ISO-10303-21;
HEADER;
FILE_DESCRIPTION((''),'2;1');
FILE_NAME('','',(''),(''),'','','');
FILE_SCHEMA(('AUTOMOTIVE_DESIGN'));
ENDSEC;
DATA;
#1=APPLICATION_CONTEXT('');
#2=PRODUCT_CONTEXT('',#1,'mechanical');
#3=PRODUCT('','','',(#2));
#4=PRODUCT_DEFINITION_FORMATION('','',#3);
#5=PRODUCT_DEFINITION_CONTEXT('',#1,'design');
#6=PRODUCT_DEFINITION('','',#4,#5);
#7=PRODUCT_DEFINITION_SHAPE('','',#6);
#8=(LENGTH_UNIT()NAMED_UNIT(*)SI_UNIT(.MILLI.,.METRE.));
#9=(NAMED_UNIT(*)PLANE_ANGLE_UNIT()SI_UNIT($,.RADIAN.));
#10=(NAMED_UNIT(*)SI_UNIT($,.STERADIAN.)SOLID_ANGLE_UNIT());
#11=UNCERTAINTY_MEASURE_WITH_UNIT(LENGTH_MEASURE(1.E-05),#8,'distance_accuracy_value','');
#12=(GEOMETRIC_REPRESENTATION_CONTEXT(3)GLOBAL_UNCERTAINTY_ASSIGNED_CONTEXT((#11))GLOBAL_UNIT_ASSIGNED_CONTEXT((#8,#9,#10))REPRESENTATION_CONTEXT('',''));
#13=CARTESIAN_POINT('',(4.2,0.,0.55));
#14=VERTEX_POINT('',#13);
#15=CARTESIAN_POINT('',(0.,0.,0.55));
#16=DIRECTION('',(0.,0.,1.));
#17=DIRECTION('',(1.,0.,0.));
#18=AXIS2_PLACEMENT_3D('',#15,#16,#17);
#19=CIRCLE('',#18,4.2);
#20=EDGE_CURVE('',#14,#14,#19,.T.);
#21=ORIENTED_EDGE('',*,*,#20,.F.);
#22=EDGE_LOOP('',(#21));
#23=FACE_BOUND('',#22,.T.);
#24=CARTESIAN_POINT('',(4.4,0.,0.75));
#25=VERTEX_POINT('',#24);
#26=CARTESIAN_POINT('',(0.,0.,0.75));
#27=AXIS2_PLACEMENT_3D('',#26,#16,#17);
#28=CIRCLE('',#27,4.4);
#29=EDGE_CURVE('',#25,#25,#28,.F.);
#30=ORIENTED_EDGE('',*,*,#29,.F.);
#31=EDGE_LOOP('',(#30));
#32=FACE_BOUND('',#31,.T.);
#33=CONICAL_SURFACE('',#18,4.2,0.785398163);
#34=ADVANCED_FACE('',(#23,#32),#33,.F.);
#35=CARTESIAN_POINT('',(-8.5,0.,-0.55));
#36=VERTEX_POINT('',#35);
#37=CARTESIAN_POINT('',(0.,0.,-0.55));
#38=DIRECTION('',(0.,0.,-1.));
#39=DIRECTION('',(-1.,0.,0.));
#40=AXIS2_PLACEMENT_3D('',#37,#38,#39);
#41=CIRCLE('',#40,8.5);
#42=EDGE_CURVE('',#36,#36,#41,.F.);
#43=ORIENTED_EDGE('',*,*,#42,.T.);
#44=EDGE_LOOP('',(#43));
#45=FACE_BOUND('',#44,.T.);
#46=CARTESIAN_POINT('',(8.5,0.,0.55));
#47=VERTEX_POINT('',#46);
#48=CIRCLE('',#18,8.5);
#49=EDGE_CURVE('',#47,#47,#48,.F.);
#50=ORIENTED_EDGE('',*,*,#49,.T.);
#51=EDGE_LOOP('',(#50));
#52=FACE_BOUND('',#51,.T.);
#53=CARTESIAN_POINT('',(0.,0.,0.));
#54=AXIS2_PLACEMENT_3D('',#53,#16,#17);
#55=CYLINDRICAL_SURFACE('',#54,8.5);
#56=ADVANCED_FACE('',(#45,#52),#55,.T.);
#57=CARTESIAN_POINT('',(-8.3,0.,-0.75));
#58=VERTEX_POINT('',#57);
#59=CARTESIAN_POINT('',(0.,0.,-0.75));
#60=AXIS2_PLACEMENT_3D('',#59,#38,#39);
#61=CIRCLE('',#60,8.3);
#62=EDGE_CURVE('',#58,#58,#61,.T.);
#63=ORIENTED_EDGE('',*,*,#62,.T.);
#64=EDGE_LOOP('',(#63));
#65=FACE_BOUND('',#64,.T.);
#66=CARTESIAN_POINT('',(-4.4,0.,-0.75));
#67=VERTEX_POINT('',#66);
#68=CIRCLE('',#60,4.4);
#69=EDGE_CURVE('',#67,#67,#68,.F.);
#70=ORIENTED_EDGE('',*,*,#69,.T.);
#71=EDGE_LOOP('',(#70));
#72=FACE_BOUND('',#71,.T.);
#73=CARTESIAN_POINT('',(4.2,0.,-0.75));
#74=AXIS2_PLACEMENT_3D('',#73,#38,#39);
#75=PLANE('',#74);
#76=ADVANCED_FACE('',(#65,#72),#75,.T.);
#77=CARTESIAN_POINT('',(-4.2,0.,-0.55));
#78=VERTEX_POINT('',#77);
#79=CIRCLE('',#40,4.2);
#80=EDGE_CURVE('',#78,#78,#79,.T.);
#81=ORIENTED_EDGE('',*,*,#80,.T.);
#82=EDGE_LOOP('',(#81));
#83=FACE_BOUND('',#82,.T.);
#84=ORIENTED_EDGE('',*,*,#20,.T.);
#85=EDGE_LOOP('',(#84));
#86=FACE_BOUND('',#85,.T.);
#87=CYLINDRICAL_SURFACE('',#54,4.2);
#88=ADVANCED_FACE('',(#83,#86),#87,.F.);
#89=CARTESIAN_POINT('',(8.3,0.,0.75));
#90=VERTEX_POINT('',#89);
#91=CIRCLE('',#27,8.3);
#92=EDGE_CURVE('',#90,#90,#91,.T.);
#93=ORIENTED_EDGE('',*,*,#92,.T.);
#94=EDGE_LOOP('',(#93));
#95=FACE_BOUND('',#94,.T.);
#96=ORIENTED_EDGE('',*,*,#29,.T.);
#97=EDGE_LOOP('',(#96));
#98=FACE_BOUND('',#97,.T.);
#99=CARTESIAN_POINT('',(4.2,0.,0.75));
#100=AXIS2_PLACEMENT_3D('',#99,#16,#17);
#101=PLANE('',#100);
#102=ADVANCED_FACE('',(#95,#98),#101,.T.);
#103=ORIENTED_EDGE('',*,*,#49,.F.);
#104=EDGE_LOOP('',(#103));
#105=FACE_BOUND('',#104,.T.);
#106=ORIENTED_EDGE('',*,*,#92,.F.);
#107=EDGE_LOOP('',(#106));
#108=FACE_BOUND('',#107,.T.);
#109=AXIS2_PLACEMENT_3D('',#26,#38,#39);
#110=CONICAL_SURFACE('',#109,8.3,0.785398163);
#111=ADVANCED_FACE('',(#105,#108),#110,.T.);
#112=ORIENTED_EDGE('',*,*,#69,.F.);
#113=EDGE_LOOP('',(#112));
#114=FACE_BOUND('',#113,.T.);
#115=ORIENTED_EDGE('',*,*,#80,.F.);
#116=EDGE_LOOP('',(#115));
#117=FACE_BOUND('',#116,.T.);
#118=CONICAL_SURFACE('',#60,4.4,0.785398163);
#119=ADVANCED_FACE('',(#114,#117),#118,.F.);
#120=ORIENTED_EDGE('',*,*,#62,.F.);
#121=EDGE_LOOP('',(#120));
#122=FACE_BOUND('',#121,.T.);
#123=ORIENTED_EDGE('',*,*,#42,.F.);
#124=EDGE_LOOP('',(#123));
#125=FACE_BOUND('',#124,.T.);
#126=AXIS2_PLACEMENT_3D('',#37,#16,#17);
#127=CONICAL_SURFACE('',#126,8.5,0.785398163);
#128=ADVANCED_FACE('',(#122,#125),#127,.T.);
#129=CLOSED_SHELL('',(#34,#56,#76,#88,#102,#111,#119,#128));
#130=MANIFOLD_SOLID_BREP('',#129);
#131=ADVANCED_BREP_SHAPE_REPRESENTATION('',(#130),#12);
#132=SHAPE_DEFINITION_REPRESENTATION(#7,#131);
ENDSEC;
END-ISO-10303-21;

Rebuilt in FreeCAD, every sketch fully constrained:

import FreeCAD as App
import Part
import Sketcher

V = App.Vector


def edges_at(feature, points):
    """Names of the edges that pass closest to the given points."""
    edges = feature.Shape.Edges
    near = lambda p: min(range(len(edges)), key=lambda i: edges[i].distToShape(Part.Vertex(*p))[0])
    return sorted({f"Edge{near(p) + 1}" for p in points})

doc = App.newDocument("Part")
params = doc.addObject("Spreadsheet::Sheet", "Params")
for row, (alias, value) in enumerate([
    ("sketch1_width", "4.3 mm"),
    ("sketch1_height", "1.5 mm"),
    ("revolution_angle", "360 deg"),
    ("chamfer_size", "0.2 mm"),
], start=1):
    params.set(f"A{row}", alias)
    params.set(f"B{row}", "=" + value)
    params.setAlias(f"B{row}", alias)

body = doc.addObject("PartDesign::Body", "Body")

# Sketch on XZ plane
sketch1 = doc.addObject("Sketcher::SketchObject", "Sketch")
body.addObject(sketch1)
sketch1.AttachmentSupport = (doc.XZ_Plane, [""])
sketch1.MapMode = "FlatFace"
sketch1.addGeometry(Part.LineSegment(V(4.2, -0.8, 0), V(4.2, 0.8, 0)), False)
sketch1.addGeometry(Part.LineSegment(V(4.2, 0.8, 0), V(8.5, 0.8, 0)), False)
sketch1.addGeometry(Part.LineSegment(V(8.5, 0.8, 0), V(8.5, -0.8, 0)), False)
sketch1.addGeometry(Part.LineSegment(V(8.5, -0.8, 0), V(4.2, -0.8, 0)), False)
sketch1.addConstraint(Sketcher.Constraint("Coincident", 0, 2, 1, 1))
sketch1.addConstraint(Sketcher.Constraint("Coincident", 1, 2, 2, 1))
sketch1.addConstraint(Sketcher.Constraint("Coincident", 2, 2, 3, 1))
sketch1.addConstraint(Sketcher.Constraint("Coincident", 3, 2, 0, 1))
sketch1.addConstraint(Sketcher.Constraint("Vertical", 0))
sketch1.addConstraint(Sketcher.Constraint("Horizontal", 1))
sketch1.addConstraint(Sketcher.Constraint("Vertical", 2))
sketch1.addConstraint(Sketcher.Constraint("Horizontal", 3))
sketch1.addConstraint(Sketcher.Constraint("DistanceX", 1, 1, 1, 2, 4.3))
sketch1.addConstraint(Sketcher.Constraint("DistanceY", 0, 1, 0, 2, 1.5))
sketch1.addConstraint(Sketcher.Constraint("DistanceX", -1, 1, 0, 2, 4.2))
sketch1.addConstraint(Sketcher.Constraint("DistanceY", -1, 1, 0, 2, 0.75))
sketch1.setExpression("Constraints[8]", "Params.sketch1_width")
sketch1.setExpression("Constraints[9]", "Params.sketch1_height")
revolution = doc.addObject("PartDesign::Revolution", "Revolution")
body.addObject(revolution)
revolution.Profile = sketch1
revolution.ReferenceAxis = (sketch1, ["V_Axis"])
revolution.setExpression("Angle", "Params.revolution_angle")
doc.recompute()

chamfer = doc.addObject("PartDesign::Chamfer", "Chamfer")
body.addObject(chamfer)
chamfer.Base = (revolution, edges_at(revolution, [
    (-4.2, 0, -0.75),
    (-8.5, 0, -0.75),
    (-8.5, 0, 0.75),
    (-4.2, 0, 0.75),
]))
chamfer.setExpression("Size", "Params.chamfer_size")

doc.recompute()
